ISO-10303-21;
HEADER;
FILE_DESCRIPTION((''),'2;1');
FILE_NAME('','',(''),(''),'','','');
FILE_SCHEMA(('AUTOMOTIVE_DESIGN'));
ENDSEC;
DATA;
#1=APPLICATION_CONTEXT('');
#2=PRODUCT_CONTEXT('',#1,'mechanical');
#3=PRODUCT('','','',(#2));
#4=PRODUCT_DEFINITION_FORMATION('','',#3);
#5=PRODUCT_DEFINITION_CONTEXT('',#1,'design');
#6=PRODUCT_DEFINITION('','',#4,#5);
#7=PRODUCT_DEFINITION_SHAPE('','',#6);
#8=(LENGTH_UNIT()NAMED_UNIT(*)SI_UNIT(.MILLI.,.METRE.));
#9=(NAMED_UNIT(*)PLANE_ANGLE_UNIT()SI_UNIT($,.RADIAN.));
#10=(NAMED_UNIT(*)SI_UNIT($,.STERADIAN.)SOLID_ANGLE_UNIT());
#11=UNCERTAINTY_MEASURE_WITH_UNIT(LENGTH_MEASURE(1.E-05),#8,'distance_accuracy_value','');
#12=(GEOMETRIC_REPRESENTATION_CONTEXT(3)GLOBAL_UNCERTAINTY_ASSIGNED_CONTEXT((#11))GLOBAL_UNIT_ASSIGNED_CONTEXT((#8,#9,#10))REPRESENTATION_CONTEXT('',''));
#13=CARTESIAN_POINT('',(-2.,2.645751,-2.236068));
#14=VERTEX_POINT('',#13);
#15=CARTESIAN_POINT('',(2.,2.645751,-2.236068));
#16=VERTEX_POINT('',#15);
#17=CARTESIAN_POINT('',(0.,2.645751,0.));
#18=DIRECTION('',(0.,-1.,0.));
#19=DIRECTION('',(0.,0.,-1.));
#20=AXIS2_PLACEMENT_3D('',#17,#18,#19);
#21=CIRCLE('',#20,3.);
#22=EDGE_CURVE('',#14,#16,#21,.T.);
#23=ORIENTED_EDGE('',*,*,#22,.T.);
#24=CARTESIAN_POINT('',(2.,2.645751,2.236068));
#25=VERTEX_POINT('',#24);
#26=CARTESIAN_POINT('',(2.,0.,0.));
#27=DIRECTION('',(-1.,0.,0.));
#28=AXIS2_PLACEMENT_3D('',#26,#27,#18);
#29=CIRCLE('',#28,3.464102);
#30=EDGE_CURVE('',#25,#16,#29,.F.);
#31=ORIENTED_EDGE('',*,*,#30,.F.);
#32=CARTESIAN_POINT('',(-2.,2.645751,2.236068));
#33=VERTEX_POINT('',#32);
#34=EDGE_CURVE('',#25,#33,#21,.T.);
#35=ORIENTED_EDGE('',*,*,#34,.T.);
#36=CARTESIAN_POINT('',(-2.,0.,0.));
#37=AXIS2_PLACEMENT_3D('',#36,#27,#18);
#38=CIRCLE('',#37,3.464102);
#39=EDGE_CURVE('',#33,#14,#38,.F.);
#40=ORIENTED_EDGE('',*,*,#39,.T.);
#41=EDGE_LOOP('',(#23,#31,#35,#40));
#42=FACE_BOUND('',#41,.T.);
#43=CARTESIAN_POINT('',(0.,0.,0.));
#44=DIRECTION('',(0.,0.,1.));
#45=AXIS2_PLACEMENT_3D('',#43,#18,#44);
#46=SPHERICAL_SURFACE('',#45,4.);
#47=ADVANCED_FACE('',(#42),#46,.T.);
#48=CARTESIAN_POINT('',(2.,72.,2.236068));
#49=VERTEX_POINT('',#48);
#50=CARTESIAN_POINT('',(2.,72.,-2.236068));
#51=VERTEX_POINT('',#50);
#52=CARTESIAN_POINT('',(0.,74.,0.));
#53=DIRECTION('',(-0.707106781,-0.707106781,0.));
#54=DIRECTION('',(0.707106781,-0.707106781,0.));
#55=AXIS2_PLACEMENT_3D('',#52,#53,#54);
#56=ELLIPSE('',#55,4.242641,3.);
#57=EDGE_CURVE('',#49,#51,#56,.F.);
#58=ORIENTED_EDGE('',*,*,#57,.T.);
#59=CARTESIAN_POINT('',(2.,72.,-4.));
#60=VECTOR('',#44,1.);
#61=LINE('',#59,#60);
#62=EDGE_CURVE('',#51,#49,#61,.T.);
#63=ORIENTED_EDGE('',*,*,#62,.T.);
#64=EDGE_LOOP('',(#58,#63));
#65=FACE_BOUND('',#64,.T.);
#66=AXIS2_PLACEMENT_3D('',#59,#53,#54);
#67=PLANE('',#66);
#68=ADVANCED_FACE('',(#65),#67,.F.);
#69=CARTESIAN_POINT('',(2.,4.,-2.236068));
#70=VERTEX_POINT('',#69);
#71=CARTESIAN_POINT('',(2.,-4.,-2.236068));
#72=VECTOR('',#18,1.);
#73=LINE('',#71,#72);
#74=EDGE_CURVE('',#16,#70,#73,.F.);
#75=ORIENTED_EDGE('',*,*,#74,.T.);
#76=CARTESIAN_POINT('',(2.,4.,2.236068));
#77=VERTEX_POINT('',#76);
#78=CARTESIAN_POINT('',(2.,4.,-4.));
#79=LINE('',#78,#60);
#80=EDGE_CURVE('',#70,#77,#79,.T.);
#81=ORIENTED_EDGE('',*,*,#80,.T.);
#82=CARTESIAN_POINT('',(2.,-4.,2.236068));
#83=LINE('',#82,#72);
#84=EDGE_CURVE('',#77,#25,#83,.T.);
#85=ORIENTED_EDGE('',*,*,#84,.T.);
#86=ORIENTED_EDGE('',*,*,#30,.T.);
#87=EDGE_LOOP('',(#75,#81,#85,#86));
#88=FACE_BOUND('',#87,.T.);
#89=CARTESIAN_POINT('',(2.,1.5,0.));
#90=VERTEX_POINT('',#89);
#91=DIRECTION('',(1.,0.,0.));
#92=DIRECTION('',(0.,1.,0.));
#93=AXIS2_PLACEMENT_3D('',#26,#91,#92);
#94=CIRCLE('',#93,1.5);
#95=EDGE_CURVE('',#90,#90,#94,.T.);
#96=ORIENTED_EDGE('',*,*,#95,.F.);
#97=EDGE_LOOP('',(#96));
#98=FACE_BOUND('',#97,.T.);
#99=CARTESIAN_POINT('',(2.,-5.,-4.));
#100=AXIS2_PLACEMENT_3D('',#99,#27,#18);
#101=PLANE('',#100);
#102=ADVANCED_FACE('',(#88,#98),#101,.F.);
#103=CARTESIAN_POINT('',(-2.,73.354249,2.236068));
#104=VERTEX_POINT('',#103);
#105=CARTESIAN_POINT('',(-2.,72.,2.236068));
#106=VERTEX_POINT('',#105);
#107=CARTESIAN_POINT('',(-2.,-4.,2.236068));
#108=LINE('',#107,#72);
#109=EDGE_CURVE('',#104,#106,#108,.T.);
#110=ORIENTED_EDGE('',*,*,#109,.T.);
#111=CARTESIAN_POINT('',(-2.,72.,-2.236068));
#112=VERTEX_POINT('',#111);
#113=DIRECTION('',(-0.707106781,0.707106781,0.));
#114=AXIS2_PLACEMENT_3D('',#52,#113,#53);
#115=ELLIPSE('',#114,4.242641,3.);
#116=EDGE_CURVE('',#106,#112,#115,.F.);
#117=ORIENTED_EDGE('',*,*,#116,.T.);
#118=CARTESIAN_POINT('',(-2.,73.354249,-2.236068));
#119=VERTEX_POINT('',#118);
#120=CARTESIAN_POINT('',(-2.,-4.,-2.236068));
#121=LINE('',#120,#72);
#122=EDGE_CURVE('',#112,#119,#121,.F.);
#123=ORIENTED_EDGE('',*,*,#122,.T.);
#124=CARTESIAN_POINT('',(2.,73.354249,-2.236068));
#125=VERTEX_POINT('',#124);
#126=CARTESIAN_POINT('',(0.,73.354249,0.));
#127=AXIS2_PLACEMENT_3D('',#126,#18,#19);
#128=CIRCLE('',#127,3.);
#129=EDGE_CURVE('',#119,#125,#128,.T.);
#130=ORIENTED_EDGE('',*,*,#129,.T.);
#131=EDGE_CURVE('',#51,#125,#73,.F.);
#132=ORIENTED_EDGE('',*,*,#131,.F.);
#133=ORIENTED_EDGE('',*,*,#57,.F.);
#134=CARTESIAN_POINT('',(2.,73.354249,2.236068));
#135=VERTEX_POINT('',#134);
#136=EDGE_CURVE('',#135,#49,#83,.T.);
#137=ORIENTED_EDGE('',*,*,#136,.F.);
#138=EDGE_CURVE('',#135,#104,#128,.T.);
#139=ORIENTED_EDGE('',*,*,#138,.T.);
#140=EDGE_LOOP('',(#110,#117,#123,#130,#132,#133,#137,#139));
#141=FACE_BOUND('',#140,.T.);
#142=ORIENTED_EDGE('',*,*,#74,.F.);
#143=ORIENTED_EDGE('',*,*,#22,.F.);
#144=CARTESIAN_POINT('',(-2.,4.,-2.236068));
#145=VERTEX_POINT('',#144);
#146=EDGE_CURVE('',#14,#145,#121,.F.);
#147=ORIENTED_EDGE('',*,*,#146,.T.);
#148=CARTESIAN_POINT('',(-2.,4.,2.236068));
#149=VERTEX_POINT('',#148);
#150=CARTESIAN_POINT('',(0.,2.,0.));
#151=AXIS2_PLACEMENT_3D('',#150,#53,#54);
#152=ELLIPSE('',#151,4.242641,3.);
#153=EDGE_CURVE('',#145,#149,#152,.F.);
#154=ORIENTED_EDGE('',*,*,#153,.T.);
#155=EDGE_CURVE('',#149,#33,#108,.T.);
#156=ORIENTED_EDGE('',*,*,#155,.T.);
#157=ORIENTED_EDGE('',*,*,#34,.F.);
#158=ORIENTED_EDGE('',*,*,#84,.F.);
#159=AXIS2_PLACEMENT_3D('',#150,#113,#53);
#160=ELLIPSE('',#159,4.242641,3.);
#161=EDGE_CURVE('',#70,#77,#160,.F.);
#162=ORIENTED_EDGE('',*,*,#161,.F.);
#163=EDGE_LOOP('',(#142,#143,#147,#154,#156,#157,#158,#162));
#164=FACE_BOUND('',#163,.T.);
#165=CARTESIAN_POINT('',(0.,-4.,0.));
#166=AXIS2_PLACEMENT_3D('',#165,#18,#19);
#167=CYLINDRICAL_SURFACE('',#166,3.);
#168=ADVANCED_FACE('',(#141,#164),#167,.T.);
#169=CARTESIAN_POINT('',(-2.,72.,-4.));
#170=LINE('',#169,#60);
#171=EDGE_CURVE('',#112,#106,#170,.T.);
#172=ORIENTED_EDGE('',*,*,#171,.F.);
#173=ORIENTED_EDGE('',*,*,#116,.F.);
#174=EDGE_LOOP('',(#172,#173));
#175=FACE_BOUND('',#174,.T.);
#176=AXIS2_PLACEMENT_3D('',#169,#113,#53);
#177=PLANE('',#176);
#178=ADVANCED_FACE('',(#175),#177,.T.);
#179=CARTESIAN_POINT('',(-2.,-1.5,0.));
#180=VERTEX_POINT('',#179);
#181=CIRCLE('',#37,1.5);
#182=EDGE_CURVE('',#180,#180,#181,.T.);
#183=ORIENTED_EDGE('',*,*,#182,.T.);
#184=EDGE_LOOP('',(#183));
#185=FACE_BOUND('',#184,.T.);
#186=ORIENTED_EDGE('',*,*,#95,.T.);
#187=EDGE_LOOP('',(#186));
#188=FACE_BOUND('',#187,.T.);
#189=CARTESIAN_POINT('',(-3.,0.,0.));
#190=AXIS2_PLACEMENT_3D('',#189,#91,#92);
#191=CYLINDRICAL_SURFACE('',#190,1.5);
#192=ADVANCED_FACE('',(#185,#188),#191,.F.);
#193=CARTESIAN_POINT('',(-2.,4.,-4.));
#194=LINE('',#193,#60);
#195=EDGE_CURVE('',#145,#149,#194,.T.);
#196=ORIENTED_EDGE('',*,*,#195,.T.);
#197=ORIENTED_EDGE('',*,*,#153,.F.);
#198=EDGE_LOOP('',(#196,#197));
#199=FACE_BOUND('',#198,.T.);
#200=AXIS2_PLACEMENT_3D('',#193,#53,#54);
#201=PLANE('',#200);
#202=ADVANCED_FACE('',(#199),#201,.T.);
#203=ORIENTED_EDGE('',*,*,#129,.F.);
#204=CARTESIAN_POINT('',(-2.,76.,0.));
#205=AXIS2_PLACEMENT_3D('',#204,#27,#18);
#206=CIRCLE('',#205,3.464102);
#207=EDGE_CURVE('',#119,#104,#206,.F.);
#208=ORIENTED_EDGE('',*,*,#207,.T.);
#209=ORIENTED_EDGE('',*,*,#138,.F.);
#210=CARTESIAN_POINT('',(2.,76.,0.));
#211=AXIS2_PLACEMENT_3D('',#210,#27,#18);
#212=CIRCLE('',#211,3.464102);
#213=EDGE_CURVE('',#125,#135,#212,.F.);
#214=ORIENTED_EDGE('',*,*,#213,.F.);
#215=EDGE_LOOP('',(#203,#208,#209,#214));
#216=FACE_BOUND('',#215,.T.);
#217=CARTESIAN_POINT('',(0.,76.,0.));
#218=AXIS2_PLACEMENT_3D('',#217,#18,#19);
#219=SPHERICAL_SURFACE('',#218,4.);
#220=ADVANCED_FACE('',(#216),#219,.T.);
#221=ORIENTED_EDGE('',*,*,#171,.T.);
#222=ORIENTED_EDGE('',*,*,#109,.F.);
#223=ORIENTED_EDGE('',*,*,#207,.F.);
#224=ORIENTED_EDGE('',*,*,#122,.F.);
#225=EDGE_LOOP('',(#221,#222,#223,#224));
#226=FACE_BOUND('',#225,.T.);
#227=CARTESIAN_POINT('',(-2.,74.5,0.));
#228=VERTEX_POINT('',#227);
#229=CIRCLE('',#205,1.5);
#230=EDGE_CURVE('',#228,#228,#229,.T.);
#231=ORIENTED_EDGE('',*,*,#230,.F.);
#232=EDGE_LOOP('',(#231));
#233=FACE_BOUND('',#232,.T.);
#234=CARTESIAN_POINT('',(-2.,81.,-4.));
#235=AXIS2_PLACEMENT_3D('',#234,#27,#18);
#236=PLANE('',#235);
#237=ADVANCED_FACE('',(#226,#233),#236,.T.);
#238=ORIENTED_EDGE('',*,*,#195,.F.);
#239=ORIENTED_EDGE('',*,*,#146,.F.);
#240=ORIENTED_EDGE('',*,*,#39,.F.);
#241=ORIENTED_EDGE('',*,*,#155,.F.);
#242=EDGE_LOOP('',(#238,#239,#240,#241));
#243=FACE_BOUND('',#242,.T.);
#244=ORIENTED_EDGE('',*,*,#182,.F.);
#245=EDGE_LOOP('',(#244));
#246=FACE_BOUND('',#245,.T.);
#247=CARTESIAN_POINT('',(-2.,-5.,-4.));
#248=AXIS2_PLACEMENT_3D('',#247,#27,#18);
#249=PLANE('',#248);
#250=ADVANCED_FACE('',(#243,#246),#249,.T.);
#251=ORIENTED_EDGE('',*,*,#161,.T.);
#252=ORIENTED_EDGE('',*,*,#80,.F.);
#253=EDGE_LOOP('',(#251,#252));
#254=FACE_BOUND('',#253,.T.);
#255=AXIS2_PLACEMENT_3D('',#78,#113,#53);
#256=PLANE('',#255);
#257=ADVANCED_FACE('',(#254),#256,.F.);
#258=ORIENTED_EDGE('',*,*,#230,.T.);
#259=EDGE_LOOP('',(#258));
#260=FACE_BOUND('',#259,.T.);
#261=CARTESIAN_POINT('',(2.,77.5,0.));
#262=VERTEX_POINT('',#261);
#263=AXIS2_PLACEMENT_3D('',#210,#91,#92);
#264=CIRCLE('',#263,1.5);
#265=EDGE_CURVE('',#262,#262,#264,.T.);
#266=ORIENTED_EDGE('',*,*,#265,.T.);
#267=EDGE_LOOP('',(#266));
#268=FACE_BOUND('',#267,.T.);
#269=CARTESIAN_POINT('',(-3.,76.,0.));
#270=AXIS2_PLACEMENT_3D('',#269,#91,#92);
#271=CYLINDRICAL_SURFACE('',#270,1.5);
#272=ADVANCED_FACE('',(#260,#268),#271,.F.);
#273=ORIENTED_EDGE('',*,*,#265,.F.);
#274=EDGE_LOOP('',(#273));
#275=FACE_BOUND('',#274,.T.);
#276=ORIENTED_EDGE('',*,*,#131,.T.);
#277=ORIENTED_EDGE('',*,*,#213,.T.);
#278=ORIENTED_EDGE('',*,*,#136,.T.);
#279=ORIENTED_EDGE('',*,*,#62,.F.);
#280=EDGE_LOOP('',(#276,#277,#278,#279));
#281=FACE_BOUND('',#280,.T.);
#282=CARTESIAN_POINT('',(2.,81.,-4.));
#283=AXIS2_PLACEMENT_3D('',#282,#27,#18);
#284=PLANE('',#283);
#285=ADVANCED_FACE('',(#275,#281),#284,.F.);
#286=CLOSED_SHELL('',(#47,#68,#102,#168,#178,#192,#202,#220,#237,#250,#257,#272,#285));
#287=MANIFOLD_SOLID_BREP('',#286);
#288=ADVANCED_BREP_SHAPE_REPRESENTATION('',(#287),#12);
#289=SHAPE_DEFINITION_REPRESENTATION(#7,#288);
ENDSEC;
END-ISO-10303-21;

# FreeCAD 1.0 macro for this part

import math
import FreeCAD as App
import Part
import Sketcher


def add_polygon(sketch, points):
    """Adds a closed chain of lines whose ends are joined by coincident constraints."""
    first, n = sketch.GeometryCount, len(points)
    for a, b in zip(points, points[1:] + points[:1]):
        sketch.addGeometry(Part.LineSegment(App.Vector(*a, 0), App.Vector(*b, 0)), False)
    for i in range(n):
        sketch.addConstraint(Sketcher.Constraint("Coincident", first + i, 2, first + (i + 1) % n, 1))

doc = App.newDocument("Part")
params = doc.addObject("Spreadsheet::Sheet", "Params")
for row, (alias, value) in enumerate([
    ("sketch1_radius", "4 mm"),
    ("sketch1_width", "84 mm"),
    ("revolution_angle", "360 deg"),
    ("sketch2_width", "5 mm"),
    ("sketch2_width2", "6 mm"),
    ("sketch2_height", "9 mm"),
    ("pocket1_length", "162.399501 mm"),
    ("sketch3_diameter", "3 mm"),
], start=1):
    params.set(f"A{row}", alias)
    params.set(f"B{row}", "=" + value)
    params.setAlias(f"B{row}", alias)

body = doc.addObject("PartDesign::Body", "Body")

sketch1 = body.newObject("Sketcher::SketchObject", "Sketch")
sketch1.AttachmentSupport = (doc.getObject("YZ_Plane"), [""])
sketch1.MapMode = "FlatFace"
sketch1.addGeometry(Part.LineSegment(App.Vector(2.6, -3, 0), App.Vector(73.4, -3, 0)), False)
sketch1.addGeometry(Part.ArcOfCircle(Part.Circle(App.Vector(76, 0, 0), App.Vector(0, 0, 1), 4), math.radians(-131), math.radians(0)), False)
sketch1.addGeometry(Part.LineSegment(App.Vector(80, 0, 0), App.Vector(-4, 0, 0)), False)
sketch1.addGeometry(Part.ArcOfCircle(Part.Circle(App.Vector(0, 0, 0), App.Vector(0, 0, 1), 4), math.radians(180), math.radians(311)), False)
sketch1.addConstraint(Sketcher.Constraint("Coincident", 0, 2, 1, 1))
sketch1.addConstraint(Sketcher.Constraint("Coincident", 1, 2, 2, 1))
sketch1.addConstraint(Sketcher.Constraint("Coincident", 2, 2, 3, 1))
sketch1.addConstraint(Sketcher.Constraint("Coincident", 3, 2, 0, 1))
sketch1.addConstraint(Sketcher.Constraint("Horizontal", 0))
sketch1.addConstraint(Sketcher.Constraint("Horizontal", 2))
sketch1.addConstraint(Sketcher.Constraint("Coincident", 3, 3, -1, 1))
sketch1.addConstraint(Sketcher.Constraint("Equal", 1, 3))
sketch1.addConstraint(Sketcher.Constraint("PointOnObject", 1, 3, -1))
sketch1.addConstraint(Sketcher.Constraint("PointOnObject", 1, 2, -1))
sketch1.addConstraint(Sketcher.Constraint("Radius", 1, 4.0))
sketch1.addConstraint(Sketcher.Constraint("DistanceX", 2, 2, 2, 1, 84.0))
sketch1.addConstraint(Sketcher.Constraint("DistanceY", 0, 2, -1, 1, 3.0))
sketch1.setExpression("Constraints[10]", "Params.sketch1_radius")
sketch1.setExpression("Constraints[11]", "Params.sketch1_width")
revolution = body.newObject("PartDesign::Revolution", "Revolution")
revolution.Profile = sketch1
revolution.ReferenceAxis = (sketch1, ["H_Axis"])
revolution.setExpression("Angle", "Params.revolution_angle")

sketch2 = body.newObject("Sketcher::SketchObject", "Sketch001")
sketch2.AttachmentSupport = (doc.getObject("XY_Plane"), [""])
sketch2.MapMode = "FlatFace"
add_polygon(sketch2, [(2, 81), (2, 72), (3, 71), (8, 71), (8, 81)])
add_polygon(sketch2, [(2, -5), (8, -5), (8, 5), (3, 5), (2, 4)])
sketch2.addConstraint(Sketcher.Constraint("Vertical", 0))
sketch2.addConstraint(Sketcher.Constraint("Horizontal", 2))
sketch2.addConstraint(Sketcher.Constraint("Vertical", 3))
sketch2.addConstraint(Sketcher.Constraint("Horizontal", 4))
sketch2.addConstraint(Sketcher.Constraint("Horizontal", 5))
sketch2.addConstraint(Sketcher.Constraint("Vertical", 6))
sketch2.addConstraint(Sketcher.Constraint("Horizontal", 7))
sketch2.addConstraint(Sketcher.Constraint("Vertical", 9))
sketch2.addConstraint(Sketcher.Constraint("Perpendicular", 1, 8))
sketch2.addConstraint(Sketcher.Constraint("Vertical", 3, 2, 5, 2))
sketch2.addConstraint(Sketcher.Constraint("Vertical", 1, 2, 7, 2))
sketch2.addConstraint(Sketcher.Constraint("Vertical", 4, 2, 8, 2))
sketch2.addConstraint(Sketcher.Constraint("Equal", 3, 6))
sketch2.addConstraint(Sketcher.Constraint("Equal", 0, 9))
sketch2.addConstraint(Sketcher.Constraint("DistanceX", 2, 1, 2, 2, 5.0))
sketch2.addConstraint(Sketcher.Constraint("DistanceX", 4, 2, 4, 1, 6.0))
sketch2.addConstraint(Sketcher.Constraint("DistanceY", 0, 2, 0, 1, 9.0))
sketch2.addConstraint(Sketcher.Constraint("DistanceX", -1, 1, 0, 2, 2.0))
sketch2.addConstraint(Sketcher.Constraint("DistanceY", -1, 1, 0, 2, 72.0))
sketch2.addConstraint(Sketcher.Constraint("DistanceY", 5, 2, -1, 1, 5.0))
sketch2.setExpression("Constraints[24]", "Params.sketch2_width")
sketch2.setExpression("Constraints[25]", "Params.sketch2_width2")
sketch2.setExpression("Constraints[26]", "Params.sketch2_height")
pocket1 = body.newObject("PartDesign::Pocket", "Pocket")
pocket1.Profile = sketch2
pocket1.setExpression("Length", "Params.pocket1_length")
pocket1.Midplane = True
doc.recompute()

mirrored = body.newObject("PartDesign::Mirrored", "Mirrored")
mirrored.Originals = [pocket1]
mirrored.MirrorPlane = (doc.getObject("YZ_Plane"), [""])
body.Tip = mirrored

sketch3 = body.newObject("Sketcher::SketchObject", "Sketch002")
sketch3.AttachmentSupport = (doc.getObject("YZ_Plane"), [""])
sketch3.MapMode = "FlatFace"
sketch3.AttachmentOffset = App.Placement(App.Vector(0, 0, 2), App.Rotation())
sketch3.addGeometry(Part.Circle(App.Vector(76, 0, 0), App.Vector(0, 0, 1), 1.5), False)
sketch3.addGeometry(Part.Circle(App.Vector(0, 0, 0), App.Vector(0, 0, 1), 1.5), False)
sketch3.addConstraint(Sketcher.Constraint("Coincident", 1, 3, -1, 1))
sketch3.addConstraint(Sketcher.Constraint("Equal", 0, 1))
sketch3.addConstraint(Sketcher.Constraint("PointOnObject", 0, 3, -1))
sketch3.addConstraint(Sketcher.Constraint("Diameter", 0, 3.0))
sketch3.addConstraint(Sketcher.Constraint("DistanceX", -1, 1, 0, 3, 76.0))
sketch3.setExpression("Constraints[3]", "Params.sketch3_diameter")
pocket2 = body.newObject("PartDesign::Pocket", "Pocket001")
pocket2.Profile = sketch3
pocket2.Type = "ThroughAll"

doc.recompute()
